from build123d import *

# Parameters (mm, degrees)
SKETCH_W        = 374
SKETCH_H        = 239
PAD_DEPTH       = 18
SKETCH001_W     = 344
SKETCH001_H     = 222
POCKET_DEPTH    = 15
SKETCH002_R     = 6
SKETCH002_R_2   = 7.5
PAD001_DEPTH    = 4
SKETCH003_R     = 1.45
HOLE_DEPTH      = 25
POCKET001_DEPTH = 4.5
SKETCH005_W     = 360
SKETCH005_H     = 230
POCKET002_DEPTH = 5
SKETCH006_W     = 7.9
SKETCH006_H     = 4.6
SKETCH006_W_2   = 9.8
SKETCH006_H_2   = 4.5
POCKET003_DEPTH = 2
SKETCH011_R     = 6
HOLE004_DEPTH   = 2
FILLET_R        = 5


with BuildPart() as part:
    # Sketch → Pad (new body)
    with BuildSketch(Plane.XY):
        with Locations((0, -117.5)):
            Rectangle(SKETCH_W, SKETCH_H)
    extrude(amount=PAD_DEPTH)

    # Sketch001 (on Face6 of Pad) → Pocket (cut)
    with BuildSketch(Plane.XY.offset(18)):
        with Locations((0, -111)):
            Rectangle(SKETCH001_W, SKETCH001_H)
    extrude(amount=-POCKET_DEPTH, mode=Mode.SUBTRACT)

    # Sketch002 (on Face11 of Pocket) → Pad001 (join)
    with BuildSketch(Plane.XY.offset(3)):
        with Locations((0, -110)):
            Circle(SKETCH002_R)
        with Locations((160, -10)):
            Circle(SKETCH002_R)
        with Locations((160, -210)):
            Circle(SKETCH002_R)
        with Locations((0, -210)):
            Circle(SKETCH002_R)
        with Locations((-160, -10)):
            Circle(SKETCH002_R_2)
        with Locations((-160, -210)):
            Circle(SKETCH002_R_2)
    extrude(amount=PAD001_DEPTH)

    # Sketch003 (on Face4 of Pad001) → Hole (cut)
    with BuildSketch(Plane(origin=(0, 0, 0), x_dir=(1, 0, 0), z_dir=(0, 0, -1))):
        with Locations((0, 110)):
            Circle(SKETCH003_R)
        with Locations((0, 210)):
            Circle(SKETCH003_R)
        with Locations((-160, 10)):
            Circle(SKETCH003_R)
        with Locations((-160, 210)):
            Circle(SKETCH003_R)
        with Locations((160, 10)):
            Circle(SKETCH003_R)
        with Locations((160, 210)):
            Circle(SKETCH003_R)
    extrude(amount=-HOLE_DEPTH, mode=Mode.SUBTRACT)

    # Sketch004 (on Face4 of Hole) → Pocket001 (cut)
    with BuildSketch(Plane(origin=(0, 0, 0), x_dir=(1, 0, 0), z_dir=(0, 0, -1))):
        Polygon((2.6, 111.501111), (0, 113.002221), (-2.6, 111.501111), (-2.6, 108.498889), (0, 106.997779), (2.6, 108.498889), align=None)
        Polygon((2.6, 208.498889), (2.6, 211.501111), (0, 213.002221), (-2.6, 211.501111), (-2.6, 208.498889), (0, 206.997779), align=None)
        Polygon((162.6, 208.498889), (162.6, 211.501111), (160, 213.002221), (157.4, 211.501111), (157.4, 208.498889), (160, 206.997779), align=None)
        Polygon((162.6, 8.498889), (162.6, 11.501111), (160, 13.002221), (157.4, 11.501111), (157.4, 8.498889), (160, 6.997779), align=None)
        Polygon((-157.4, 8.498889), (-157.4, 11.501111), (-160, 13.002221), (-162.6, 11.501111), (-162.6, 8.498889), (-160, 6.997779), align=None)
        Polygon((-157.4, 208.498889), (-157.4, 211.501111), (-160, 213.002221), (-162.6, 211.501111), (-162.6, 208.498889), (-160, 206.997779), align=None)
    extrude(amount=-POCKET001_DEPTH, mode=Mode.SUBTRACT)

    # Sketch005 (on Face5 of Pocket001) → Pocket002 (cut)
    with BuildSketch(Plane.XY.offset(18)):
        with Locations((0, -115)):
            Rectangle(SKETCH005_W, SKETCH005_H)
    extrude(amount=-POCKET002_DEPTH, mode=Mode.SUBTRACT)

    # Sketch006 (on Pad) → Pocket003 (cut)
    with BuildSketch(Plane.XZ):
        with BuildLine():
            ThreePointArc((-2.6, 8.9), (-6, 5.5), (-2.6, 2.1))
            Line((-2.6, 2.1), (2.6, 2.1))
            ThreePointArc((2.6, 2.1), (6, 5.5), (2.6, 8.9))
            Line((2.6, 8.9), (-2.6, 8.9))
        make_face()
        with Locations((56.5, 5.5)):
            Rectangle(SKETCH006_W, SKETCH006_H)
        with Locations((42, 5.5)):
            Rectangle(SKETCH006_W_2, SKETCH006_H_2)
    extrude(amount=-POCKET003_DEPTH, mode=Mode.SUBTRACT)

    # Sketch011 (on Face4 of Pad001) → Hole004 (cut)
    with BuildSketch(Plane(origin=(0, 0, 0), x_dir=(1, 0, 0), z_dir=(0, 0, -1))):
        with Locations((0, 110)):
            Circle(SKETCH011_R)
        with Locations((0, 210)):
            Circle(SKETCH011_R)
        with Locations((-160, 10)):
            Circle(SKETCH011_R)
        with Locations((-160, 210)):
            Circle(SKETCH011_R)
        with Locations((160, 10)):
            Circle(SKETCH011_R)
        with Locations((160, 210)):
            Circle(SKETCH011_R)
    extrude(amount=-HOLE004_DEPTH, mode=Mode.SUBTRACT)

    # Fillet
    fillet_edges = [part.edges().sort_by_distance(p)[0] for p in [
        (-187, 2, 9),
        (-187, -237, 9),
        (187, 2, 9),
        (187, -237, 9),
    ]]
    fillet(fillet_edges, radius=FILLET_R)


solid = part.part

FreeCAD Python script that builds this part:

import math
import FreeCAD as App
import Part
import Sketcher
Q = App.Units.Quantity


def edges_at(feature, points):
    """Names of the edges that pass closest to the given points."""
    edges = feature.Shape.Edges
    near = lambda p: min(range(len(edges)), key=lambda i: edges[i].distToShape(Part.Vertex(*p))[0])
    return sorted({f"Edge{near(p) + 1}" for p in points})


def add_polygon(sketch, points):
    """Adds a closed chain of lines whose ends are joined by coincident constraints."""
    first, n = sketch.GeometryCount, len(points)
    for a, b in zip(points, points[1:] + points[:1]):
        sketch.addGeometry(Part.LineSegment(App.Vector(*a, 0), App.Vector(*b, 0)), False)
    for i in range(n):
        sketch.addConstraint(Sketcher.Constraint("Coincident", first + i, 2, first + (i + 1) % n, 1))

doc = App.newDocument("Part")
body = doc.addObject("PartDesign::Body", "Body")

# Sketch on XY plane
sketch1 = doc.addObject("Sketcher::SketchObject", "Sketch")
body.addObject(sketch1)
sketch1.AttachmentSupport = (doc.XY_Plane, [""])
sketch1.MapMode = "FlatFace"
add_polygon(sketch1, [(-187, 2), (-187, -237), (187, -237), (187, 2)])  # lines 0-3
sketch1.addConstraint(Sketcher.Constraint("Vertical", 0))
sketch1.addConstraint(Sketcher.Constraint("Horizontal", 1))
sketch1.addConstraint(Sketcher.Constraint("Vertical", 2))
sketch1.addConstraint(Sketcher.Constraint("Horizontal", 3))
sketch1.addConstraint(Sketcher.Constraint("DistanceX", 1, 1, 1, 2, Q("374 mm")))
sketch1.addConstraint(Sketcher.Constraint("DistanceY", 0, 2, 0, 1, Q("239 mm")))
sketch1.addConstraint(Sketcher.Constraint("DistanceX", 0, 2, -1, 1, Q("187 mm")))
sketch1.addConstraint(Sketcher.Constraint("DistanceY", 0, 2, -1, 1, Q("237 mm")))
pad1 = doc.addObject("PartDesign::Pad", "Pad")
body.addObject(pad1)
pad1.Profile = sketch1
pad1.Length = 18

# Sketch on XY plane
sketch2 = doc.addObject("Sketcher::SketchObject", "Sketch001")
body.addObject(sketch2)
sketch2.AttachmentSupport = (doc.XY_Plane, [""])
sketch2.MapMode = "FlatFace"
sketch2.AttachmentOffset = App.Placement(App.Vector(0, 0, 18), App.Rotation())
add_polygon(sketch2, [(-172, 0), (-172, -222), (172, -222), (172, 0)])  # lines 0-3
sketch2.addConstraint(Sketcher.Constraint("Vertical", 0))
sketch2.addConstraint(Sketcher.Constraint("Horizontal", 1))
sketch2.addConstraint(Sketcher.Constraint("Vertical", 2))
sketch2.addConstraint(Sketcher.Constraint("Horizontal", 3))
sketch2.addConstraint(Sketcher.Constraint("Symmetric", 2, 2, 3, 2, -1, 1))
sketch2.addConstraint(Sketcher.Constraint("DistanceX", 1, 1, 1, 2, Q("344 mm")))
sketch2.addConstraint(Sketcher.Constraint("DistanceY", 0, 2, 0, 1, Q("222 mm")))
pocket1 = doc.addObject("PartDesign::Pocket", "Pocket")
body.addObject(pocket1)
pocket1.Profile = sketch2
pocket1.Length = 15

# Sketch on XY plane
sketch3 = doc.addObject("Sketcher::SketchObject", "Sketch002")
body.addObject(sketch3)
sketch3.AttachmentSupport = (doc.XY_Plane, [""])
sketch3.MapMode = "FlatFace"
sketch3.AttachmentOffset = App.Placement(App.Vector(0, 0, 3), App.Rotation())
sketch3.addGeometry(Part.Circle(App.Vector(0, -110, 0), App.Vector(0, 0, 1), 6), False)
sketch3.addGeometry(Part.Circle(App.Vector(160, -10, 0), App.Vector(0, 0, 1), 6), False)
sketch3.addGeometry(Part.Circle(App.Vector(160, -210, 0), App.Vector(0, 0, 1), 6), False)
sketch3.addGeometry(Part.Circle(App.Vector(0, -210, 0), App.Vector(0, 0, 1), 6), False)
sketch3.addGeometry(Part.Circle(App.Vector(-160, -10, 0), App.Vector(0, 0, 1), 8), False)
sketch3.addGeometry(Part.Circle(App.Vector(-160, -210, 0), App.Vector(0, 0, 1), 8), False)
sketch3.addConstraint(Sketcher.Constraint("Equal", 0, 1))
sketch3.addConstraint(Sketcher.Constraint("Equal", 1, 2))
sketch3.addConstraint(Sketcher.Constraint("Equal", 2, 3))
sketch3.addConstraint(Sketcher.Constraint("Equal", 4, 5))
sketch3.addConstraint(Sketcher.Constraint("Symmetric", 1, 3, 4, 3, -2))
sketch3.addConstraint(Sketcher.Constraint("Symmetric", 2, 3, 5, 3, -2))
sketch3.addConstraint(Sketcher.Constraint("PointOnObject", 0, 3, -2))
sketch3.addConstraint(Sketcher.Constraint("PointOnObject", 3, 3, -2))
sketch3.addConstraint(Sketcher.Constraint("Horizontal", 2, 3, 3, 3))
sketch3.addConstraint(Sketcher.Constraint("Vertical", 1, 3, 2, 3))
sketch3.addConstraint(Sketcher.Constraint("Diameter", 0, Q("12 mm")))
sketch3.addConstraint(Sketcher.Constraint("Diameter", 4, Q("15 mm")))
sketch3.addConstraint(Sketcher.Constraint("DistanceY", 0, 3, -1, 1, Q("110 mm")))
sketch3.addConstraint(Sketcher.Constraint("DistanceX", -1, 1, 1, 3, Q("160 mm")))
sketch3.addConstraint(Sketcher.Constraint("DistanceY", 1, 3, -1, 1, Q("10 mm")))
sketch3.addConstraint(Sketcher.Constraint("DistanceY", 2, 3, -1, 1, Q("210 mm")))
pad2 = doc.addObject("PartDesign::Pad", "Pad001")
body.addObject(pad2)
pad2.Profile = sketch3
pad2.Length = 4

# Sketch on XY plane
sketch4 = doc.addObject("Sketcher::SketchObject", "Sketch003")
body.addObject(sketch4)
sketch4.AttachmentSupport = (doc.XY_Plane, [""])
sketch4.MapMode = "FlatFace"
sketch4.addGeometry(Part.Circle(App.Vector(0, -110, 0), App.Vector(0, 0, 1), 1.4), False)
sketch4.addGeometry(Part.Circle(App.Vector(0, -210, 0), App.Vector(0, 0, 1), 1.4), False)
sketch4.addGeometry(Part.Circle(App.Vector(-160, -10, 0), App.Vector(0, 0, 1), 1.4), False)
sketch4.addGeometry(Part.Circle(App.Vector(-160, -210, 0), App.Vector(0, 0, 1), 1.4), False)
sketch4.addGeometry(Part.Circle(App.Vector(160, -10, 0), App.Vector(0, 0, 1), 1.4), False)
sketch4.addGeometry(Part.Circle(App.Vector(160, -210, 0), App.Vector(0, 0, 1), 1.4), False)
sketch4.addConstraint(Sketcher.Constraint("Equal", 0, 1))
sketch4.addConstraint(Sketcher.Constraint("Equal", 1, 2))
sketch4.addConstraint(Sketcher.Constraint("Equal", 2, 3))
sketch4.addConstraint(Sketcher.Constraint("Equal", 3, 4))
sketch4.addConstraint(Sketcher.Constraint("Equal", 4, 5))
sketch4.addConstraint(Sketcher.Constraint("Symmetric", 2, 3, 4, 3, -2))
sketch4.addConstraint(Sketcher.Constraint("Symmetric", 3, 3, 5, 3, -2))
sketch4.addConstraint(Sketcher.Constraint("PointOnObject", 0, 3, -2))
sketch4.addConstraint(Sketcher.Constraint("PointOnObject", 1, 3, -2))
sketch4.addConstraint(Sketcher.Constraint("Horizontal", 1, 3, 3, 3))
sketch4.addConstraint(Sketcher.Constraint("Vertical", 2, 3, 3, 3))
sketch4.addConstraint(Sketcher.Constraint("Diameter", 0, Q("2.9 mm")))
sketch4.addConstraint(Sketcher.Constraint("DistanceY", 0, 3, -1, 1, Q("110 mm")))
sketch4.addConstraint(Sketcher.Constraint("DistanceY", 1, 3, -1, 1, Q("210 mm")))
sketch4.addConstraint(Sketcher.Constraint("DistanceX", 2, 3, -1, 1, Q("160 mm")))
sketch4.addConstraint(Sketcher.Constraint("DistanceY", 2, 3, -1, 1, Q("10 mm")))
pocket2 = doc.addObject("PartDesign::Pocket", "Pocket001")
body.addObject(pocket2)
pocket2.Profile = sketch4
pocket2.Length = 25
pocket2.Reversed = True

# Sketch on XY plane
sketch5 = doc.addObject("Sketcher::SketchObject", "Sketch004")
body.addObject(sketch5)
sketch5.AttachmentSupport = (doc.XY_Plane, [""])
sketch5.MapMode = "FlatFace"
add_polygon(sketch5, [(2.6, -111.5), (0, -113), (-2.6, -111.5), (-2.6, -108.5), (0, -107), (2.6, -108.5)])  # lines 0-5
add_polygon(sketch5, [(2.6, -208.5), (2.6, -211.5), (0, -213), (-2.6, -211.5), (-2.6, -208.5), (0, -207)])  # lines 6-11
add_polygon(sketch5, [(162.6, -208.5), (162.6, -211.5), (160, -213), (157.4, -211.5), (157.4, -208.5), (160, -207)])  # lines 12-17
add_polygon(sketch5, [(162.6, -8.5), (162.6, -11.5), (160, -13), (157.4, -11.5), (157.4, -8.5), (160, -7)])  # lines 18-23
add_polygon(sketch5, [(-157.4, -8.5), (-157.4, -11.5), (-160, -13), (-162.6, -11.5), (-162.6, -8.5), (-160, -7)])  # lines 24-29
add_polygon(sketch5, [(-157.4, -208.5), (-157.4, -211.5), (-160, -213), (-162.6, -211.5), (-162.6, -208.5), (-160, -207)])  # lines 30-35
sketch5.addConstraint(Sketcher.Constraint("Vertical", 2))
sketch5.addConstraint(Sketcher.Constraint("Vertical", 5))
sketch5.addConstraint(Sketcher.Constraint("Vertical", 6))
sketch5.addConstraint(Sketcher.Constraint("Vertical", 9))
sketch5.addConstraint(Sketcher.Constraint("Vertical", 12))
sketch5.addConstraint(Sketcher.Constraint("Vertical", 15))
sketch5.addConstraint(Sketcher.Constraint("Vertical", 18))
sketch5.addConstraint(Sketcher.Constraint("Vertical", 21))
sketch5.addConstraint(Sketcher.Constraint("Vertical", 24))
sketch5.addConstraint(Sketcher.Constraint("Vertical", 27))
sketch5.addConstraint(Sketcher.Constraint("Vertical", 30))
sketch5.addConstraint(Sketcher.Constraint("Vertical", 33))
sketch5.addConstraint(Sketcher.Constraint("Symmetric", 2, 2, 4, 2, -2))
sketch5.addConstraint(Sketcher.Constraint("Symmetric", 6, 2, 8, 2, -2))
sketch5.addConstraint(Sketcher.Constraint("Symmetric", 20, 2, 24, 2, -2))
sketch5.addConstraint(Sketcher.Constraint("Symmetric", 19, 2, 25, 2, -2))
sketch5.addConstraint(Sketcher.Constraint("Symmetric", 18, 2, 26, 2, -2))
sketch5.addConstraint(Sketcher.Constraint("Symmetric", 22, 2, 28, 2, -2))
sketch5.addConstraint(Sketcher.Constraint("Symmetric", 14, 2, 30, 2, -2))
sketch5.addConstraint(Sketcher.Constraint("Symmetric", 13, 2, 31, 2, -2))
sketch5.addConstraint(Sketcher.Constraint("Symmetric", 12, 2, 32, 2, -2))
sketch5.addConstraint(Sketcher.Constraint("Symmetric", 16, 2, 34, 2, -2))
sketch5.addConstraint(Sketcher.Constraint("PointOnObject", 0, 2, -2))
sketch5.addConstraint(Sketcher.Constraint("PointOnObject", 3, 2, -2))
sketch5.addConstraint(Sketcher.Constraint("PointOnObject", 7, 2, -2))
sketch5.addConstraint(Sketcher.Constraint("PointOnObject", 10, 2, -2))
sketch5.addConstraint(Sketcher.Constraint("Parallel", 0, 3))
sketch5.addConstraint(Sketcher.Constraint("Parallel", 1, 4))
sketch5.addConstraint(Sketcher.Constraint("Parallel", 3, 7))
sketch5.addConstraint(Sketcher.Constraint("Parallel", 7, 10))
sketch5.addConstraint(Sketcher.Constraint("Parallel", 8, 11))
sketch5.addConstraint(Sketcher.Constraint("Parallel", 10, 13))
sketch5.addConstraint(Sketcher.Constraint("Parallel", 11, 14))
sketch5.addConstraint(Sketcher.Constraint("Parallel", 13, 16))
sketch5.addConstraint(Sketcher.Constraint("Parallel", 14, 17))
sketch5.addConstraint(Sketcher.Constraint("Parallel", 16, 19))
sketch5.addConstraint(Sketcher.Constraint("Parallel", 17, 20))
sketch5.addConstraint(Sketcher.Constraint("Parallel", 19, 22))
sketch5.addConstraint(Sketcher.Constraint("Parallel", 20, 23))
sketch5.addConstraint(Sketcher.Constraint("Parallel", 25, 28))
sketch5.addConstraint(Sketcher.Constraint("Parallel", 26, 29))
sketch5.addConstraint(Sketcher.Constraint("Parallel", 31, 34))
sketch5.addConstraint(Sketcher.Constraint("Parallel", 32, 35))
sketch5.addConstraint(Sketcher.Constraint("Horizontal", 8, 2, 12, 2))
sketch5.addConstraint(Sketcher.Constraint("Horizontal", 7, 2, 13, 2))
sketch5.addConstraint(Sketcher.Constraint("Horizontal", 12, 2, 14, 2))
sketch5.addConstraint(Sketcher.Constraint("Horizontal", 11, 2, 15, 2))
sketch5.addConstraint(Sketcher.Constraint("Horizontal", 10, 2, 16, 2))
sketch5.addConstraint(Sketcher.Constraint("Horizontal", 18, 2, 20, 2))
sketch5.addConstraint(Sketcher.Constraint("Horizontal", 21, 2, 23, 2))
sketch5.addConstraint(Sketcher.Constraint("Vertical", 5, 2, 6, 2))
sketch5.addConstraint(Sketcher.Constraint("Vertical", 17, 2, 18, 2))
sketch5.addConstraint(Sketcher.Constraint("Vertical", 16, 2, 19, 2))
sketch5.addConstraint(Sketcher.Constraint("Equal", 5, 6))
sketch5.addConstraint(Sketcher.Constraint("Equal", 15, 18))
sketch5.addConstraint(Sketcher.Constraint("Angle", 0, Q("-150.000012 deg")))
sketch5.addConstraint(Sketcher.Constraint("DistanceX", -1, 1, 13, 2, Q("160 mm")))
sketch5.addConstraint(Sketcher.Constraint("DistanceY", 6, 2, 5, 2, Q("100 mm")))
sketch5.addConstraint(Sketcher.Constraint("DistanceY", 5, 2, 18, 2, Q("100 mm")))
sketch5.addConstraint(Sketcher.Constraint("DistanceX", 1, 2, -1, 1, Q("2.6 mm")))
sketch5.addConstraint(Sketcher.Constraint("DistanceY", 2, 1, 2, 2, Q("3.002222 mm")))
sketch5.addConstraint(Sketcher.Constraint("DistanceY", 0, 2, -1, 1, Q("113.002221 mm")))
pocket3 = doc.addObject("PartDesign::Pocket", "Pocket002")
body.addObject(pocket3)
pocket3.Profile = sketch5
pocket3.Length = 4.5
pocket3.Reversed = True

# Sketch on XY plane
sketch6 = doc.addObject("Sketcher::SketchObject", "Sketch005")
body.addObject(sketch6)
sketch6.AttachmentSupport = (doc.XY_Plane, [""])
sketch6.MapMode = "FlatFace"
sketch6.AttachmentOffset = App.Placement(App.Vector(0, 0, 18), App.Rotation())
add_polygon(sketch6, [(-180, 0), (-180, -230), (180, -230), (180, 0)])  # lines 0-3
sketch6.addConstraint(Sketcher.Constraint("Vertical", 0))
sketch6.addConstraint(Sketcher.Constraint("Horizontal", 1))
sketch6.addConstraint(Sketcher.Constraint("Vertical", 2))
sketch6.addConstraint(Sketcher.Constraint("Horizontal", 3))
sketch6.addConstraint(Sketcher.Constraint("Symmetric", 2, 2, 3, 2, -1, 1))
sketch6.addConstraint(Sketcher.Constraint("DistanceX", 1, 1, 1, 2, Q("360 mm")))
sketch6.addConstraint(Sketcher.Constraint("DistanceY", 0, 2, 0, 1, Q("230 mm")))
pocket4 = doc.addObject("PartDesign::Pocket", "Pocket003")
body.addObject(pocket4)
pocket4.Profile = sketch6
pocket4.Length = 5

# Sketch on XZ plane
sketch7 = doc.addObject("Sketcher::SketchObject", "Sketch006")
body.addObject(sketch7)
sketch7.AttachmentSupport = (doc.XZ_Plane, [""])
sketch7.MapMode = "FlatFace"
sketch7.addGeometry(Part.ArcOfCircle(Part.Circle(App.Vector(-2.6, 5.5, 0), App.Vector(0, 0, 1), 3.4), math.radians(90), math.radians(270)), False)  # 0
sketch7.addGeometry(Part.LineSegment(App.Vector(-2.6, 2.1, 0), App.Vector(2.6, 2.1, 0)), False)  # 1
sketch7.addGeometry(Part.ArcOfCircle(Part.Circle(App.Vector(2.6, 5.5, 0), App.Vector(0, 0, 1), 3.4), math.radians(-90), math.radians(90)), False)  # 2
sketch7.addGeometry(Part.LineSegment(App.Vector(2.6, 8.9, 0), App.Vector(-2.6, 8.9, 0)), False)  # 3
add_polygon(sketch7, [(52.5, 7.8), (52.5, 3.2), (60.5, 3.2), (60.5, 7.8)])  # lines 4-7
add_polygon(sketch7, [(37.1, 7.8), (37.1, 3.2), (46.9, 3.2), (46.9, 7.8)])  # lines 8-11
sketch7.addConstraint(Sketcher.Constraint("Tangent", 0, 2, 1, 1))
sketch7.addConstraint(Sketcher.Constraint("Tangent", 1, 2, 2, 1))
sketch7.addConstraint(Sketcher.Constraint("Tangent", 2, 2, 3, 1))
sketch7.addConstraint(Sketcher.Constraint("Tangent", 3, 2, 0, 1))
sketch7.addConstraint(Sketcher.Constraint("Horizontal", 1))
sketch7.addConstraint(Sketcher.Constraint("Horizontal", 3))
sketch7.addConstraint(Sketcher.Constraint("Vertical", 4))
sketch7.addConstraint(Sketcher.Constraint("Horizontal", 5))
sketch7.addConstraint(Sketcher.Constraint("Vertical", 6))
sketch7.addConstraint(Sketcher.Constraint("Horizontal", 7))
sketch7.addConstraint(Sketcher.Constraint("Vertical", 8))
sketch7.addConstraint(Sketcher.Constraint("Horizontal", 9))
sketch7.addConstraint(Sketcher.Constraint("Vertical", 10))
sketch7.addConstraint(Sketcher.Constraint("Horizontal", 11))
sketch7.addConstraint(Sketcher.Constraint("Radius", 0, Q("3.4 mm")))
sketch7.addConstraint(Sketcher.Constraint("DistanceX", 1, 1, 1, 2, Q("5.2 mm")))
sketch7.addConstraint(Sketcher.Constraint("DistanceX", 5, 1, 5, 2, Q("7.9 mm")))
sketch7.addConstraint(Sketcher.Constraint("DistanceX", 9, 1, 9, 2, Q("9.8 mm")))
sketch7.addConstraint(Sketcher.Constraint("DistanceY", 4, 2, 4, 1, Q("4.6 mm")))
sketch7.addConstraint(Sketcher.Constraint("DistanceY", 8, 2, 8, 1, Q("4.5 mm")))
sketch7.addConstraint(Sketcher.Constraint("DistanceX", 0, 3, -1, 1, Q("2.6 mm")))
sketch7.addConstraint(Sketcher.Constraint("DistanceY", -1, 1, 0, 3, Q("5.5 mm")))
sketch7.addConstraint(Sketcher.Constraint("DistanceY", -1, 1, 4, 2, Q("3.2 mm")))
sketch7.addConstraint(Sketcher.Constraint("DistanceX", -1, 1, 8, 2, Q("37.1 mm")))
sketch7.addConstraint(Sketcher.Constraint("DistanceX", -1, 1, 4, 2, Q("52.55 mm")))
sketch7.addConstraint(Sketcher.Constraint("DistanceY", -1, 1, 8, 2, Q("3.25 mm")))
pocket5 = doc.addObject("PartDesign::Pocket", "Pocket004")
body.addObject(pocket5)
pocket5.Profile = sketch7
pocket5.Length = 2

# Sketch on XY plane
sketch8 = doc.addObject("Sketcher::SketchObject", "Sketch007")
body.addObject(sketch8)
sketch8.AttachmentSupport = (doc.XY_Plane, [""])
sketch8.MapMode = "FlatFace"
sketch8.addGeometry(Part.Circle(App.Vector(0, -110, 0), App.Vector(0, 0, 1), 6), False)
sketch8.addGeometry(Part.Circle(App.Vector(0, -210, 0), App.Vector(0, 0, 1), 6), False)
sketch8.addGeometry(Part.Circle(App.Vector(-160, -10, 0), App.Vector(0, 0, 1), 6), False)
sketch8.addGeometry(Part.Circle(App.Vector(-160, -210, 0), App.Vector(0, 0, 1), 6), False)
sketch8.addGeometry(Part.Circle(App.Vector(160, -10, 0), App.Vector(0, 0, 1), 6), False)
sketch8.addGeometry(Part.Circle(App.Vector(160, -210, 0), App.Vector(0, 0, 1), 6), False)
sketch8.addConstraint(Sketcher.Constraint("Equal", 0, 1))
sketch8.addConstraint(Sketcher.Constraint("Equal", 1, 2))
sketch8.addConstraint(Sketcher.Constraint("Equal", 2, 3))
sketch8.addConstraint(Sketcher.Constraint("Equal", 3, 4))
sketch8.addConstraint(Sketcher.Constraint("Equal", 4, 5))
sketch8.addConstraint(Sketcher.Constraint("Symmetric", 2, 3, 4, 3, -2))
sketch8.addConstraint(Sketcher.Constraint("Symmetric", 3, 3, 5, 3, -2))
sketch8.addConstraint(Sketcher.Constraint("PointOnObject", 0, 3, -2))
sketch8.addConstraint(Sketcher.Constraint("PointOnObject", 1, 3, -2))
sketch8.addConstraint(Sketcher.Constraint("Horizontal", 1, 3, 3, 3))
sketch8.addConstraint(Sketcher.Constraint("Vertical", 2, 3, 3, 3))
sketch8.addConstraint(Sketcher.Constraint("Diameter", 0, Q("12 mm")))
sketch8.addConstraint(Sketcher.Constraint("DistanceY", 0, 3, -1, 1, Q("110 mm")))
sketch8.addConstraint(Sketcher.Constraint("DistanceY", 1, 3, -1, 1, Q("210 mm")))
sketch8.addConstraint(Sketcher.Constraint("DistanceX", 2, 3, -1, 1, Q("160 mm")))
sketch8.addConstraint(Sketcher.Constraint("DistanceY", 2, 3, -1, 1, Q("10 mm")))
pocket6 = doc.addObject("PartDesign::Pocket", "Pocket005")
body.addObject(pocket6)
pocket6.Profile = sketch8
pocket6.Length = 2
pocket6.Reversed = True
doc.recompute()

fillet = doc.addObject("PartDesign::Fillet", "Fillet")
body.addObject(fillet)
fillet.Base = (pocket6, edges_at(pocket6, [
    (-187, 2, 9),
    (-187, -237, 9),
    (187, 2, 9),
    (187, -237, 9),
]))
fillet.Radius = 5

doc.recompute()
